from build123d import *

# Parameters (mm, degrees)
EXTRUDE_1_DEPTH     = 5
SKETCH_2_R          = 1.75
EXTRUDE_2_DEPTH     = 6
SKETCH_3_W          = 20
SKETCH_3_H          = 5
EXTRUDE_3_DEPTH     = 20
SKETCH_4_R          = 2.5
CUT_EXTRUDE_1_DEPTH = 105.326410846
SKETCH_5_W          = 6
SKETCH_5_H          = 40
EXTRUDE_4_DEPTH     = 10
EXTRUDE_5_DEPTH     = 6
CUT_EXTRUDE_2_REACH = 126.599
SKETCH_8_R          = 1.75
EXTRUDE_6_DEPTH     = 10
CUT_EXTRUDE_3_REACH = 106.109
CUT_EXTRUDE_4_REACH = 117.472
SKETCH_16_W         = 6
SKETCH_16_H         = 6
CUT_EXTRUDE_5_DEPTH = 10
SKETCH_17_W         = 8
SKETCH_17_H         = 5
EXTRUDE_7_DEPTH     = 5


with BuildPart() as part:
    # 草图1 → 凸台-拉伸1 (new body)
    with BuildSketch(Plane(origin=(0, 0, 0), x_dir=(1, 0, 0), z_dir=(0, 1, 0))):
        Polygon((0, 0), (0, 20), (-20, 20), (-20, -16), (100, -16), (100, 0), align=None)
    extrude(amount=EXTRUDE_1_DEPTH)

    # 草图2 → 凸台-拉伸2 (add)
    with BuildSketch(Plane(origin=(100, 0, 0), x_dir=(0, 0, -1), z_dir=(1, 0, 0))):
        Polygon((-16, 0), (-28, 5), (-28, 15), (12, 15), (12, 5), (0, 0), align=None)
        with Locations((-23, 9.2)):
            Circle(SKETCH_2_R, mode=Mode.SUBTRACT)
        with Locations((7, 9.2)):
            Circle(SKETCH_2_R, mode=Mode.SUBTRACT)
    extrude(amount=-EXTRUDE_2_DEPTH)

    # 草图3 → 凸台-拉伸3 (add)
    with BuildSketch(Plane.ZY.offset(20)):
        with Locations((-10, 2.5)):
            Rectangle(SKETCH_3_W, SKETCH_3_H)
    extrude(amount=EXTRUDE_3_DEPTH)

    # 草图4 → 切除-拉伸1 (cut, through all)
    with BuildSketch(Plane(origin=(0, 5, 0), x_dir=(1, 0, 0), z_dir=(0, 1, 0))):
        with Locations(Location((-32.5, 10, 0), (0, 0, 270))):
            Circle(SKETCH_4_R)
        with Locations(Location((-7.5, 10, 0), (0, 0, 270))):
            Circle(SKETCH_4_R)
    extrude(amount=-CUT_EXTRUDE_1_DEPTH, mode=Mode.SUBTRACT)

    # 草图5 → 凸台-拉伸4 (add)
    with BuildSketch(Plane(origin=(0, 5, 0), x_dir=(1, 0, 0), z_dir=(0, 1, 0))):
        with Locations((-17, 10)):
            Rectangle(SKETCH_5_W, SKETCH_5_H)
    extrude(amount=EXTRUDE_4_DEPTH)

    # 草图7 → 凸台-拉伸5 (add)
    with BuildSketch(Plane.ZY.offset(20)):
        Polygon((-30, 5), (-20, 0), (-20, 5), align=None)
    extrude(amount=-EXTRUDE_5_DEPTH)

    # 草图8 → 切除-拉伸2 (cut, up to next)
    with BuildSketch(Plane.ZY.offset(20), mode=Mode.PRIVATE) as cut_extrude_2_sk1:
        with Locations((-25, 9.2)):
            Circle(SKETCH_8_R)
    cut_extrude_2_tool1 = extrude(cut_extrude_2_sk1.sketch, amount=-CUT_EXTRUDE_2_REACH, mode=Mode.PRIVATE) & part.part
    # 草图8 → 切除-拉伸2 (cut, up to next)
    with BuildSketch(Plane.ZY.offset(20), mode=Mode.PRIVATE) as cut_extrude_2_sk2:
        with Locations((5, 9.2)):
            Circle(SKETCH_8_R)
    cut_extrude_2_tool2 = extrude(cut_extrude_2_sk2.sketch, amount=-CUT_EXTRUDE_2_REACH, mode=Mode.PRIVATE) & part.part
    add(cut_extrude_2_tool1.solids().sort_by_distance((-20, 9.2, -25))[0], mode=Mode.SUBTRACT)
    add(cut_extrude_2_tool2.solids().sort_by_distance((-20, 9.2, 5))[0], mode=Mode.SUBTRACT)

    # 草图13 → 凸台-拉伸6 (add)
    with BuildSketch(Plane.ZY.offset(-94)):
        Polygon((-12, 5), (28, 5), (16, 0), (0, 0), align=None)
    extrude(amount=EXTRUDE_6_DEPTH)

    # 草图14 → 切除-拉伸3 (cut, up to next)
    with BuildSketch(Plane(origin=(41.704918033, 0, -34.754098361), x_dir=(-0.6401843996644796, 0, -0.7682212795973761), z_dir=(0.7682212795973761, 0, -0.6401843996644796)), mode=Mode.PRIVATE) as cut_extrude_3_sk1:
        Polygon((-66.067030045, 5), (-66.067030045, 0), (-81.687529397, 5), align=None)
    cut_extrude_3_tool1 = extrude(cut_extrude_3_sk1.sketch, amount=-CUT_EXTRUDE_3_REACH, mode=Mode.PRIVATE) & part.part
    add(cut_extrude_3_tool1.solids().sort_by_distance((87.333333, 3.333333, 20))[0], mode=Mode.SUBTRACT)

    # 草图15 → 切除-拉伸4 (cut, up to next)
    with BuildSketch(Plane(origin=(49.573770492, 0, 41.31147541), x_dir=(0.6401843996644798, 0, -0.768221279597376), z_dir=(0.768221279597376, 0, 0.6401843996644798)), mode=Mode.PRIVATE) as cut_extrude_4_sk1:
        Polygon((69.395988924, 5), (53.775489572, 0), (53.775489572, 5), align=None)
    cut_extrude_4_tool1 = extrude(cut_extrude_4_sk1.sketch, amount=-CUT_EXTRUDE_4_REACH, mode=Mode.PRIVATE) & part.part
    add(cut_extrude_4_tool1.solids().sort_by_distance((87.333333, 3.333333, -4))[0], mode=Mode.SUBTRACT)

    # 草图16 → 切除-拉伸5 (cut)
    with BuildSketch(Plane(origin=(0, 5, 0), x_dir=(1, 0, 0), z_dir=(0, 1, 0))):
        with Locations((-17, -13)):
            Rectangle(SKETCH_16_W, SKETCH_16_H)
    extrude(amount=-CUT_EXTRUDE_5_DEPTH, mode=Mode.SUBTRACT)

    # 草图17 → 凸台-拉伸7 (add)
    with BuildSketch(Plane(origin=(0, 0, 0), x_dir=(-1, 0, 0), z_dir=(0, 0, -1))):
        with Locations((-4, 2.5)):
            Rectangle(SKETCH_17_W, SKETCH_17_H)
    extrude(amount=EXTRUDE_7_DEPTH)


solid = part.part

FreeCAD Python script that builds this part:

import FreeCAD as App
import Part
import Sketcher
from FreeCAD import Vector


def add_polygon(sketch, points):
    """Adds a closed chain of lines whose ends are joined by coincident constraints."""
    first, n = sketch.GeometryCount, len(points)
    for a, b in zip(points, points[1:] + points[:1]):
        sketch.addGeometry(Part.LineSegment(App.Vector(*a, 0), App.Vector(*b, 0)), False)
    for i in range(n):
        sketch.addConstraint(Sketcher.Constraint("Coincident", first + i, 2, first + (i + 1) % n, 1))

doc = App.newDocument("Part")
body = doc.addObject("PartDesign::Body", "Body")

sketch1 = body.newObject("Sketcher::SketchObject", "Sketch")
sketch1.AttachmentSupport = (doc.getObject("XZ_Plane"), [""])
sketch1.MapMode = "FlatFace"
add_polygon(sketch1, [(0, 0), (0, -20), (-20, -20), (-20, 16), (100, 16), (100, 0)])
sketch1.addConstraint([
    Sketcher.Constraint("Vertical", 0),
    Sketcher.Constraint("Horizontal", 1),
    Sketcher.Constraint("Vertical", 2),
    Sketcher.Constraint("Horizontal", 3),
    Sketcher.Constraint("Vertical", 4),
    Sketcher.Constraint("Horizontal", 5),
    Sketcher.Constraint("Coincident", 5, 2, -1, 1),
    Sketcher.Constraint("Equal", 1, 0),
    Sketcher.Constraint("DistanceX", 1, 2, 1, 1, 20.0),
    Sketcher.Constraint("DistanceX", 3, 1, 3, 2, 120.0),
    Sketcher.Constraint("DistanceY", 2, 1, 2, 2, 36.0),
])
pad1 = body.newObject("PartDesign::Pad", "Pad")
pad1.Profile = sketch1
pad1.Length = 5
pad1.Reversed = True

sketch2 = body.newObject("Sketcher::SketchObject", "Sketch001")
sketch2.AttachmentSupport = (doc.getObject("YZ_Plane"), [""])
sketch2.MapMode = "FlatFace"
sketch2.AttachmentOffset = App.Placement(Vector(0, 0, 100), App.Rotation())
add_polygon(sketch2, [(5, 28), (0, 16), (0, 0), (5, -12), (15, -12), (15, 28)])
sketch2.addGeometry(Part.Circle(Vector(9.2, -7, 0), Vector(0, 0, 1), 1.75), False)
sketch2.addGeometry(Part.Circle(Vector(9.2, 23, 0), Vector(0, 0, 1), 1.75), False)
sketch2.addConstraint([
    Sketcher.Constraint("Vertical", 1),
    Sketcher.Constraint("Horizontal", 3),
    Sketcher.Constraint("Vertical", 4),
    Sketcher.Constraint("Horizontal", 5),
    Sketcher.Constraint("Coincident", 1, 2, -1, 1),
    Sketcher.Constraint("Equal", 6, 7),
    Sketcher.Constraint("Vertical", 6, 3, 7, 3),
    Sketcher.Constraint("Vertical", 2, 2, 5, 2),
    Sketcher.Constraint("Equal", 0, 2),
    Sketcher.Constraint("Diameter", 6, 3.5),
    Sketcher.Constraint("DistanceX", 3, 1, 3, 2, 10.0),
    Sketcher.Constraint("DistanceY", 1, 2, 1, 1, 16.0),
    Sketcher.Constraint("DistanceY", 4, 1, 4, 2, 40.0),
    Sketcher.Constraint("Distance", 0, 13.0),
    Sketcher.Constraint("DistanceY", 6, 3, -1, 1, 7.0),
    Sketcher.Constraint("DistanceY", -1, 1, 7, 3, 23.0),
    Sketcher.Constraint("DistanceX", -1, 1, 6, 3, 9.2),
])
pad2 = body.newObject("PartDesign::Pad", "Pad001")
pad2.Profile = sketch2
pad2.Length = 6
pad2.Reversed = True

sketch3 = body.newObject("Sketcher::SketchObject", "Sketch002")
sketch3.AttachmentSupport = (doc.getObject("YZ_Plane"), [""])
sketch3.MapMode = "FlatFace"
sketch3.AttachmentOffset = App.Placement(Vector(0, 0, -20), App.Rotation())
add_polygon(sketch3, [(5, -20), (0, -20), (0, 0), (5, 0)])
sketch3.addConstraint([
    Sketcher.Constraint("Horizontal", 0),
    Sketcher.Constraint("Vertical", 1),
    Sketcher.Constraint("Horizontal", 2),
    Sketcher.Constraint("Vertical", 3),
    Sketcher.Constraint("Coincident", 1, 2, -1, 1),
    Sketcher.Constraint("DistanceX", 0, 2, 0, 1, 5.0),
    Sketcher.Constraint("DistanceY", 1, 1, 1, 2, 20.0),
])
pad3 = body.newObject("PartDesign::Pad", "Pad002")
pad3.Profile = sketch3
pad3.Length = 20
pad3.Reversed = True

sketch4 = body.newObject("Sketcher::SketchObject", "Sketch003")
sketch4.AttachmentSupport = (doc.getObject("XZ_Plane"), [""])
sketch4.MapMode = "FlatFace"
sketch4.AttachmentOffset = App.Placement(Vector(0, 0, -5), App.Rotation())
sketch4.addGeometry([
    Part.Circle(Vector(-32.5, -10, 0), Vector(0, 0, 1), 2.5),
    Part.Circle(Vector(-7.5, -10, 0), Vector(0, 0, 1), 2.5),
], False)
sketch4.addConstraint([
    Sketcher.Constraint("Equal", 0, 1),
    Sketcher.Constraint("Horizontal", 0, 3, 1, 3),
    Sketcher.Constraint("Diameter", 0, 5.0),
    Sketcher.Constraint("DistanceY", 0, 3, -1, 1, 10.0),
    Sketcher.Constraint("DistanceX", 0, 3, 1, 3, 25.0),
    Sketcher.Constraint("DistanceX", 0, 3, -1, 1, 32.5),
])
pocket1 = body.newObject("PartDesign::Pocket", "Pocket")
pocket1.Profile = sketch4
pocket1.Type = "ThroughAll"
pocket1.Reversed = True

sketch5 = body.newObject("Sketcher::SketchObject", "Sketch004")
sketch5.AttachmentSupport = (doc.getObject("XZ_Plane"), [""])
sketch5.MapMode = "FlatFace"
sketch5.AttachmentOffset = App.Placement(Vector(0, 0, -5), App.Rotation())
add_polygon(sketch5, [(-20, -30), (-20, 10), (-14, 10), (-14, -30)])
sketch5.addConstraint([
    Sketcher.Constraint("Vertical", 0),
    Sketcher.Constraint("Horizontal", 1),
    Sketcher.Constraint("Vertical", 2),
    Sketcher.Constraint("Horizontal", 3),
    Sketcher.Constraint("DistanceX", 1, 1, 1, 2, 6.0),
    Sketcher.Constraint("DistanceY", 0, 1, 0, 2, 40.0),
    Sketcher.Constraint("DistanceX", 0, 2, -1, 1, 20.0),
    Sketcher.Constraint("DistanceY", -1, 1, 0, 2, 10.0),
])
pad4 = body.newObject("PartDesign::Pad", "Pad003")
pad4.Profile = sketch5
pad4.Length = 10
pad4.Reversed = True

sketch6 = body.newObject("Sketcher::SketchObject", "Sketch005")
sketch6.AttachmentSupport = (doc.getObject("YZ_Plane"), [""])
sketch6.MapMode = "FlatFace"
sketch6.AttachmentOffset = App.Placement(Vector(0, 0, -20), App.Rotation())
add_polygon(sketch6, [(5, -30), (0, -20), (5, -20)])
sketch6.addConstraint([
    Sketcher.Constraint("Horizontal", 1),
    Sketcher.Constraint("Vertical", 2),
    Sketcher.Constraint("PointOnObject", 0, 2, -2),
    Sketcher.Constraint("DistanceX", 1, 1, 1, 2, 5.0),
    Sketcher.Constraint("DistanceY", 2, 2, 2, 1, 10.0),
    Sketcher.Constraint("DistanceY", 0, 2, -1, 1, 20.0),
])
pad5 = body.newObject("PartDesign::Pad", "Pad004")
pad5.Profile = sketch6
pad5.Length = 6

sketch7 = body.newObject("Sketcher::SketchObject", "Sketch006")
sketch7.AttachmentSupport = (doc.getObject("YZ_Plane"), [""])
sketch7.MapMode = "FlatFace"
sketch7.AttachmentOffset = App.Placement(Vector(0, 0, -20), App.Rotation())
sketch7.addGeometry(Part.Circle(Vector(9.2, -25, 0), Vector(0, 0, 1), 1.75), False)
sketch7.addConstraint([
    Sketcher.Constraint("Diameter", 0, 3.5),
    Sketcher.Constraint("DistanceY", 0, 3, -1, 1, 25.0),
    Sketcher.Constraint("DistanceX", -1, 1, 0, 3, 9.2),
])
pocket2 = body.newObject("PartDesign::Pocket", "Pocket001")
pocket2.Profile = sketch7
pocket2.Type = "UpToFirst"
pocket2.Reversed = True

sketch8 = body.newObject("Sketcher::SketchObject", "Sketch007")
sketch8.AttachmentSupport = (doc.getObject("YZ_Plane"), [""])
sketch8.MapMode = "FlatFace"
sketch8.AttachmentOffset = App.Placement(Vector(0, 0, -20), App.Rotation())
sketch8.addGeometry(Part.Circle(Vector(9.2, 5, 0), Vector(0, 0, 1), 1.75), False)
sketch8.addConstraint([
    Sketcher.Constraint("Diameter", 0, 3.5),
    Sketcher.Constraint("DistanceY", -1, 1, 0, 3, 5.0),
    Sketcher.Constraint("DistanceX", -1, 1, 0, 3, 9.2),
])
pocket3 = body.newObject("PartDesign::Pocket", "Pocket002")
pocket3.Profile = sketch8
pocket3.Type = "UpToFirst"
pocket3.Reversed = True

sketch9 = body.newObject("Sketcher::SketchObject", "Sketch008")
sketch9.AttachmentSupport = (doc.getObject("YZ_Plane"), [""])
sketch9.MapMode = "FlatFace"
sketch9.AttachmentOffset = App.Placement(Vector(0, 0, 94), App.Rotation())
add_polygon(sketch9, [(5, 28), (5, -12), (0, 0), (0, 16)])
sketch9.addConstraint([
    Sketcher.Constraint("Vertical", 0),
    Sketcher.Constraint("Vertical", 2),
    Sketcher.Constraint("Coincident", 1, 2, -1, 1),
    Sketcher.Constraint("Equal", 1, 3),
    Sketcher.Constraint("DistanceY", 0, 2, 0, 1, 40.0),
    Sketcher.Constraint("DistanceY", 2, 1, 2, 2, 16.0),
    Sketcher.Constraint("Distance", 1, 13.0),
])
pad6 = body.newObject("PartDesign::Pad", "Pad005")
pad6.Profile = sketch9
pad6.Length = 10
pad6.Reversed = True

sketch10 = body.newObject("Sketcher::SketchObject", "Sketch009")
sketch10.Placement = App.Placement(Vector(41.704918, 0, -34.754098), App.Rotation(Vector(-0.6401844, 0, -0.76822128), Vector(0, 1.000000001, 0), Vector(0.76822128, 0, -0.6401844), "ZXY"))
add_polygon(sketch10, [(-66.06703, 0), (-66.06703, 5), (-81.687529, 5)])
sketch10.addConstraint([
    Sketcher.Constraint("Vertical", 0),
    Sketcher.Constraint("Horizontal", 1),
    Sketcher.Constraint("PointOnObject", 2, 2, -1),
    Sketcher.Constraint("DistanceY", 0, 1, 0, 2, 5.0),
    Sketcher.Constraint("DistanceX", 1, 2, 1, 1, 15.620499),
    Sketcher.Constraint("DistanceX", 0, 2, -1, 1, 66.06703),
])
pocket4 = body.newObject("PartDesign::Pocket", "Pocket003")
pocket4.Profile = sketch10
pocket4.Length = 7.682213

sketch11 = body.newObject("Sketcher::SketchObject", "Sketch010")
sketch11.Placement = App.Placement(Vector(49.57377, 0, 41.311475), App.Rotation(Vector(0.6401844, 0, -0.76822128), Vector(0, 1.000000001, 0), Vector(0.76822128, 0, 0.6401844), "ZXY"))
add_polygon(sketch11, [(53.77549, 0), (69.395989, 5), (53.77549, 5)])
sketch11.addConstraint([
    Sketcher.Constraint("Horizontal", 1),
    Sketcher.Constraint("Vertical", 2),
    Sketcher.Constraint("PointOnObject", 2, 2, -1),
    Sketcher.Constraint("DistanceY", 2, 2, 2, 1, 5.0),
    Sketcher.Constraint("DistanceX", 1, 2, 1, 1, 15.620499),
    Sketcher.Constraint("DistanceX", -1, 1, 0, 2, 69.395989),
])
pocket5 = body.newObject("PartDesign::Pocket", "Pocket004")
pocket5.Profile = sketch11
pocket5.Length = 7.682213

sketch12 = body.newObject("Sketcher::SketchObject", "Sketch011")
sketch12.AttachmentSupport = (doc.getObject("XZ_Plane"), [""])
sketch12.MapMode = "FlatFace"
sketch12.AttachmentOffset = App.Placement(Vector(0, 0, -5), App.Rotation())
add_polygon(sketch12, [(-20, 10), (-20, 16), (-14, 16), (-14, 10)])
sketch12.addConstraint([
    Sketcher.Constraint("Vertical", 0),
    Sketcher.Constraint("Horizontal", 1),
    Sketcher.Constraint("Vertical", 2),
    Sketcher.Constraint("Horizontal", 3),
    Sketcher.Constraint("Equal", 3, 0),
    Sketcher.Constraint("DistanceX", 1, 1, 1, 2, 6.0),
    Sketcher.Constraint("DistanceX", 0, 2, -1, 1, 20.0),
    Sketcher.Constraint("DistanceY", -1, 1, 0, 2, 16.0),
])
pocket6 = body.newObject("PartDesign::Pocket", "Pocket005")
pocket6.Profile = sketch12
pocket6.Length = 10
pocket6.Reversed = True

sketch13 = body.newObject("Sketcher::SketchObject", "Sketch012")
sketch13.AttachmentSupport = (doc.getObject("XY_Plane"), [""])
sketch13.MapMode = "FlatFace"
add_polygon(sketch13, [(8, 5), (8, 0), (0, 0), (0, 5)])
sketch13.addConstraint([
    Sketcher.Constraint("Vertical", 0),
    Sketcher.Constraint("Horizontal", 1),
    Sketcher.Constraint("Vertical", 2),
    Sketcher.Constraint("Horizontal", 3),
    Sketcher.Constraint("Coincident", 1, 2, -1, 1),
    Sketcher.Constraint("DistanceX", 1, 2, 1, 1, 8.0),
    Sketcher.Constraint("DistanceY", 0, 2, 0, 1, 5.0),
])
pad7 = body.newObject("PartDesign::Pad", "Pad006")
pad7.Profile = sketch13
pad7.Length = 5
pad7.Reversed = True

doc.recompute()
